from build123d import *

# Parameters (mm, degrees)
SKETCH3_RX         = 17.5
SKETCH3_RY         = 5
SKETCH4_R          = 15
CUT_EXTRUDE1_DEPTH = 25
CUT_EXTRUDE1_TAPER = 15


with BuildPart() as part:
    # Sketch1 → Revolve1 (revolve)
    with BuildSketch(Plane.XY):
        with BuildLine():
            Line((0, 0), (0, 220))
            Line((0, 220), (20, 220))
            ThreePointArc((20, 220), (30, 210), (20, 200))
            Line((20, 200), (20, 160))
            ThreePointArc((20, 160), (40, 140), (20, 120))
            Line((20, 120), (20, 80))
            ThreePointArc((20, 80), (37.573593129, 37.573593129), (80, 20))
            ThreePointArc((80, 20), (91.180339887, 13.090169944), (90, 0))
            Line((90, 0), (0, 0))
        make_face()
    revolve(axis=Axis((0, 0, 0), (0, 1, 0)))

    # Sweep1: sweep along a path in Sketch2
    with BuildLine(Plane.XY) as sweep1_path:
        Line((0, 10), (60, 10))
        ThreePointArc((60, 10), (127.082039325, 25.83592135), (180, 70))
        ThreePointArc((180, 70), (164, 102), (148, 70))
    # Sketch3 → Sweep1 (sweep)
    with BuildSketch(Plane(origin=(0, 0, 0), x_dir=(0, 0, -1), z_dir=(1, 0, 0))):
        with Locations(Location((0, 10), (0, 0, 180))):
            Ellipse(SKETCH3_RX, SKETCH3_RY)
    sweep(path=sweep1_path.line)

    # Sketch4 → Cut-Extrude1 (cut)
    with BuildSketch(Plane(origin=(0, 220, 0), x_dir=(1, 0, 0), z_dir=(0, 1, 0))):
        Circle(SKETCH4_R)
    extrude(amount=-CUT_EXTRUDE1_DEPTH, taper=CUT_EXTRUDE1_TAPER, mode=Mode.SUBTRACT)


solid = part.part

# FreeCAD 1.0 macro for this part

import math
import FreeCAD as App
import Part
import Sketcher
Q = App.Units.Quantity

doc = App.newDocument("Part")
body = doc.addObject("PartDesign::Body", "Body")

# Sketch on XY plane
sketch1 = body.newObject("Sketcher::SketchObject", "Sketch")
sketch1.AttachmentSupport = (doc.getObject("XY_Plane"), [""])
sketch1.MapMode = "FlatFace"
sketch1.addGeometry([
    Part.LineSegment(App.Vector(0, 220, 0), App.Vector(0, 0, 0)),  # 0
    Part.LineSegment(App.Vector(0, 0, 0), App.Vector(90, 0, 0)),  # 1
    Part.ArcOfCircle(Part.Circle(App.Vector(80, 7.5, 0), App.Vector(0, 0, 1), 12.5), math.radians(-36.869898), math.radians(90)),  # 2
    Part.ArcOfCircle(Part.Circle(App.Vector(80, 80, 0), App.Vector(0, 0, 1), 60), math.radians(-180), math.radians(-90)),  # 3
    Part.LineSegment(App.Vector(20, 80, 0), App.Vector(20, 120, 0)),  # 4
    Part.ArcOfCircle(Part.Circle(App.Vector(20, 140, 0), App.Vector(0, 0, 1), 20), math.radians(-90), math.radians(90)),  # 5
    Part.LineSegment(App.Vector(20, 160, 0), App.Vector(20, 200, 0)),  # 6
    Part.ArcOfCircle(Part.Circle(App.Vector(20, 210, 0), App.Vector(0, 0, 1), 10), math.radians(-90), math.radians(90)),  # 7
    Part.LineSegment(App.Vector(20, 220, 0), App.Vector(0, 220, 0)),  # 8
], False)
sketch1.addConstraint([
    Sketcher.Constraint("Coincident", 0, 2, 1, 1),
    Sketcher.Constraint("Coincident", 1, 2, 2, 1),
    Sketcher.Constraint("Tangent", 2, 2, 3, 2),
    Sketcher.Constraint("Tangent", 3, 1, 4, 1),
    Sketcher.Constraint("Coincident", 4, 2, 5, 1),
    Sketcher.Constraint("Coincident", 5, 2, 6, 1),
    Sketcher.Constraint("Coincident", 6, 2, 7, 1),
    Sketcher.Constraint("Tangent", 7, 2, 8, 1),
    Sketcher.Constraint("Coincident", 8, 2, 0, 1),
    Sketcher.Constraint("Vertical", 0),
    Sketcher.Constraint("Horizontal", 1),
    Sketcher.Constraint("Vertical", 4),
    Sketcher.Constraint("Vertical", 6),
    Sketcher.Constraint("Horizontal", 8),
    Sketcher.Constraint("Coincident", 0, 2, -1, 1),
    Sketcher.Constraint("Vertical", 2, 3, 3, 3),
    Sketcher.Constraint("Vertical", 5, 3, 7, 3),
    Sketcher.Constraint("Vertical", 7, 3, 3, 1),
    Sketcher.Constraint("Vertical", 4, 2, 5, 2),
    Sketcher.Constraint("Equal", 4, 6),
    Sketcher.Constraint("Radius", 3, Q("60 mm")),
    Sketcher.Constraint("Radius", 5, Q("20 mm")),
    Sketcher.Constraint("Radius", 7, Q("10 mm")),
    Sketcher.Constraint("Radius", 2, Q("12.5 mm")),
    Sketcher.Constraint("DistanceX", 1, 1, 1, 2, Q("90 mm")),
    Sketcher.Constraint("DistanceX", 8, 2, 8, 1, Q("20 mm")),
    Sketcher.Constraint("DistanceY", 0, 2, 0, 1, Q("220 mm")),
])
revolution = body.newObject("PartDesign::Revolution", "Revolution")
revolution.Profile = sketch1
revolution.ReferenceAxis = (sketch1, ["V_Axis"])
revolution.Angle = 360

# Sketch on YZ plane
sketch2 = body.newObject("Sketcher::SketchObject", "Sketch001")
sketch2.AttachmentSupport = (doc.getObject("YZ_Plane"), [""])
sketch2.MapMode = "FlatFace"
sketch2.addGeometry(Part.Ellipse(App.Vector(10, 17.5, 0), App.Vector(5, 0, 0), App.Vector(10, 0, 0)), False)
sketch2.addConstraint(Sketcher.Constraint("Block", 0))

# Sketch on XY plane
sketch3 = body.newObject("Sketcher::SketchObject", "Sketch002")
sketch3.AttachmentSupport = (doc.getObject("XY_Plane"), [""])
sketch3.MapMode = "FlatFace"
sketch3.addGeometry([
    Part.LineSegment(App.Vector(0, 10, 0), App.Vector(60, 10, 0)),
    Part.ArcOfCircle(Part.Circle(App.Vector(60, 160, 0), App.Vector(0, 0, 1), 150), math.radians(-90), math.radians(-36.869898)),
    Part.ArcOfCircle(Part.Circle(App.Vector(164, 82, 0), App.Vector(0, 0, 1), 20), math.radians(-36.869898), math.radians(216.869898)),
], False)
sketch3.addConstraint([
    Sketcher.Constraint("Tangent", 0, 2, 1, 1),
    Sketcher.Constraint("Tangent", 1, 2, 2, 1),
    Sketcher.Constraint("Horizontal", 0),
    Sketcher.Constraint("PointOnObject", 0, 1, -2),
    Sketcher.Constraint("Horizontal", 1, 2, 2, 2),
    Sketcher.Constraint("Radius", 1, Q("150 mm")),
    Sketcher.Constraint("Radius", 2, Q("20 mm")),
    Sketcher.Constraint("DistanceX", 0, 1, 0, 2, Q("60 mm")),
    Sketcher.Constraint("DistanceY", -1, 1, 1, 3, Q("160 mm")),
    Sketcher.Constraint("DistanceX", -1, 1, 2, 3, Q("164 mm")),
])
doc.recompute()

additivepipe = body.newObject("PartDesign::AdditivePipe", "AdditivePipe")
additivepipe.Profile = sketch2
additivepipe.Spine = (sketch3, ["Edge1", "Edge2", "Edge3"])

# Sketch on XZ plane
sketch4 = body.newObject("Sketcher::SketchObject", "Sketch003")
sketch4.AttachmentSupport = (doc.getObject("XZ_Plane"), [""])
sketch4.MapMode = "FlatFace"
sketch4.AttachmentOffset = App.Placement(App.Vector(0, 0, -220), App.Rotation())
sketch4.addGeometry(Part.Circle(App.Vector(0, 0, 0), App.Vector(0, 0, 1), 15), False)
sketch4.addConstraint([
    Sketcher.Constraint("Coincident", 0, 3, -1, 1),
    Sketcher.Constraint("Diameter", 0, Q("30 mm")),
])
pocket1 = body.newObject("PartDesign::Pocket", "Pocket")
pocket1.Profile = sketch4
pocket1.Length = 25
pocket1.Reversed = True
pocket1.TaperAngle = -15

doc.recompute()
